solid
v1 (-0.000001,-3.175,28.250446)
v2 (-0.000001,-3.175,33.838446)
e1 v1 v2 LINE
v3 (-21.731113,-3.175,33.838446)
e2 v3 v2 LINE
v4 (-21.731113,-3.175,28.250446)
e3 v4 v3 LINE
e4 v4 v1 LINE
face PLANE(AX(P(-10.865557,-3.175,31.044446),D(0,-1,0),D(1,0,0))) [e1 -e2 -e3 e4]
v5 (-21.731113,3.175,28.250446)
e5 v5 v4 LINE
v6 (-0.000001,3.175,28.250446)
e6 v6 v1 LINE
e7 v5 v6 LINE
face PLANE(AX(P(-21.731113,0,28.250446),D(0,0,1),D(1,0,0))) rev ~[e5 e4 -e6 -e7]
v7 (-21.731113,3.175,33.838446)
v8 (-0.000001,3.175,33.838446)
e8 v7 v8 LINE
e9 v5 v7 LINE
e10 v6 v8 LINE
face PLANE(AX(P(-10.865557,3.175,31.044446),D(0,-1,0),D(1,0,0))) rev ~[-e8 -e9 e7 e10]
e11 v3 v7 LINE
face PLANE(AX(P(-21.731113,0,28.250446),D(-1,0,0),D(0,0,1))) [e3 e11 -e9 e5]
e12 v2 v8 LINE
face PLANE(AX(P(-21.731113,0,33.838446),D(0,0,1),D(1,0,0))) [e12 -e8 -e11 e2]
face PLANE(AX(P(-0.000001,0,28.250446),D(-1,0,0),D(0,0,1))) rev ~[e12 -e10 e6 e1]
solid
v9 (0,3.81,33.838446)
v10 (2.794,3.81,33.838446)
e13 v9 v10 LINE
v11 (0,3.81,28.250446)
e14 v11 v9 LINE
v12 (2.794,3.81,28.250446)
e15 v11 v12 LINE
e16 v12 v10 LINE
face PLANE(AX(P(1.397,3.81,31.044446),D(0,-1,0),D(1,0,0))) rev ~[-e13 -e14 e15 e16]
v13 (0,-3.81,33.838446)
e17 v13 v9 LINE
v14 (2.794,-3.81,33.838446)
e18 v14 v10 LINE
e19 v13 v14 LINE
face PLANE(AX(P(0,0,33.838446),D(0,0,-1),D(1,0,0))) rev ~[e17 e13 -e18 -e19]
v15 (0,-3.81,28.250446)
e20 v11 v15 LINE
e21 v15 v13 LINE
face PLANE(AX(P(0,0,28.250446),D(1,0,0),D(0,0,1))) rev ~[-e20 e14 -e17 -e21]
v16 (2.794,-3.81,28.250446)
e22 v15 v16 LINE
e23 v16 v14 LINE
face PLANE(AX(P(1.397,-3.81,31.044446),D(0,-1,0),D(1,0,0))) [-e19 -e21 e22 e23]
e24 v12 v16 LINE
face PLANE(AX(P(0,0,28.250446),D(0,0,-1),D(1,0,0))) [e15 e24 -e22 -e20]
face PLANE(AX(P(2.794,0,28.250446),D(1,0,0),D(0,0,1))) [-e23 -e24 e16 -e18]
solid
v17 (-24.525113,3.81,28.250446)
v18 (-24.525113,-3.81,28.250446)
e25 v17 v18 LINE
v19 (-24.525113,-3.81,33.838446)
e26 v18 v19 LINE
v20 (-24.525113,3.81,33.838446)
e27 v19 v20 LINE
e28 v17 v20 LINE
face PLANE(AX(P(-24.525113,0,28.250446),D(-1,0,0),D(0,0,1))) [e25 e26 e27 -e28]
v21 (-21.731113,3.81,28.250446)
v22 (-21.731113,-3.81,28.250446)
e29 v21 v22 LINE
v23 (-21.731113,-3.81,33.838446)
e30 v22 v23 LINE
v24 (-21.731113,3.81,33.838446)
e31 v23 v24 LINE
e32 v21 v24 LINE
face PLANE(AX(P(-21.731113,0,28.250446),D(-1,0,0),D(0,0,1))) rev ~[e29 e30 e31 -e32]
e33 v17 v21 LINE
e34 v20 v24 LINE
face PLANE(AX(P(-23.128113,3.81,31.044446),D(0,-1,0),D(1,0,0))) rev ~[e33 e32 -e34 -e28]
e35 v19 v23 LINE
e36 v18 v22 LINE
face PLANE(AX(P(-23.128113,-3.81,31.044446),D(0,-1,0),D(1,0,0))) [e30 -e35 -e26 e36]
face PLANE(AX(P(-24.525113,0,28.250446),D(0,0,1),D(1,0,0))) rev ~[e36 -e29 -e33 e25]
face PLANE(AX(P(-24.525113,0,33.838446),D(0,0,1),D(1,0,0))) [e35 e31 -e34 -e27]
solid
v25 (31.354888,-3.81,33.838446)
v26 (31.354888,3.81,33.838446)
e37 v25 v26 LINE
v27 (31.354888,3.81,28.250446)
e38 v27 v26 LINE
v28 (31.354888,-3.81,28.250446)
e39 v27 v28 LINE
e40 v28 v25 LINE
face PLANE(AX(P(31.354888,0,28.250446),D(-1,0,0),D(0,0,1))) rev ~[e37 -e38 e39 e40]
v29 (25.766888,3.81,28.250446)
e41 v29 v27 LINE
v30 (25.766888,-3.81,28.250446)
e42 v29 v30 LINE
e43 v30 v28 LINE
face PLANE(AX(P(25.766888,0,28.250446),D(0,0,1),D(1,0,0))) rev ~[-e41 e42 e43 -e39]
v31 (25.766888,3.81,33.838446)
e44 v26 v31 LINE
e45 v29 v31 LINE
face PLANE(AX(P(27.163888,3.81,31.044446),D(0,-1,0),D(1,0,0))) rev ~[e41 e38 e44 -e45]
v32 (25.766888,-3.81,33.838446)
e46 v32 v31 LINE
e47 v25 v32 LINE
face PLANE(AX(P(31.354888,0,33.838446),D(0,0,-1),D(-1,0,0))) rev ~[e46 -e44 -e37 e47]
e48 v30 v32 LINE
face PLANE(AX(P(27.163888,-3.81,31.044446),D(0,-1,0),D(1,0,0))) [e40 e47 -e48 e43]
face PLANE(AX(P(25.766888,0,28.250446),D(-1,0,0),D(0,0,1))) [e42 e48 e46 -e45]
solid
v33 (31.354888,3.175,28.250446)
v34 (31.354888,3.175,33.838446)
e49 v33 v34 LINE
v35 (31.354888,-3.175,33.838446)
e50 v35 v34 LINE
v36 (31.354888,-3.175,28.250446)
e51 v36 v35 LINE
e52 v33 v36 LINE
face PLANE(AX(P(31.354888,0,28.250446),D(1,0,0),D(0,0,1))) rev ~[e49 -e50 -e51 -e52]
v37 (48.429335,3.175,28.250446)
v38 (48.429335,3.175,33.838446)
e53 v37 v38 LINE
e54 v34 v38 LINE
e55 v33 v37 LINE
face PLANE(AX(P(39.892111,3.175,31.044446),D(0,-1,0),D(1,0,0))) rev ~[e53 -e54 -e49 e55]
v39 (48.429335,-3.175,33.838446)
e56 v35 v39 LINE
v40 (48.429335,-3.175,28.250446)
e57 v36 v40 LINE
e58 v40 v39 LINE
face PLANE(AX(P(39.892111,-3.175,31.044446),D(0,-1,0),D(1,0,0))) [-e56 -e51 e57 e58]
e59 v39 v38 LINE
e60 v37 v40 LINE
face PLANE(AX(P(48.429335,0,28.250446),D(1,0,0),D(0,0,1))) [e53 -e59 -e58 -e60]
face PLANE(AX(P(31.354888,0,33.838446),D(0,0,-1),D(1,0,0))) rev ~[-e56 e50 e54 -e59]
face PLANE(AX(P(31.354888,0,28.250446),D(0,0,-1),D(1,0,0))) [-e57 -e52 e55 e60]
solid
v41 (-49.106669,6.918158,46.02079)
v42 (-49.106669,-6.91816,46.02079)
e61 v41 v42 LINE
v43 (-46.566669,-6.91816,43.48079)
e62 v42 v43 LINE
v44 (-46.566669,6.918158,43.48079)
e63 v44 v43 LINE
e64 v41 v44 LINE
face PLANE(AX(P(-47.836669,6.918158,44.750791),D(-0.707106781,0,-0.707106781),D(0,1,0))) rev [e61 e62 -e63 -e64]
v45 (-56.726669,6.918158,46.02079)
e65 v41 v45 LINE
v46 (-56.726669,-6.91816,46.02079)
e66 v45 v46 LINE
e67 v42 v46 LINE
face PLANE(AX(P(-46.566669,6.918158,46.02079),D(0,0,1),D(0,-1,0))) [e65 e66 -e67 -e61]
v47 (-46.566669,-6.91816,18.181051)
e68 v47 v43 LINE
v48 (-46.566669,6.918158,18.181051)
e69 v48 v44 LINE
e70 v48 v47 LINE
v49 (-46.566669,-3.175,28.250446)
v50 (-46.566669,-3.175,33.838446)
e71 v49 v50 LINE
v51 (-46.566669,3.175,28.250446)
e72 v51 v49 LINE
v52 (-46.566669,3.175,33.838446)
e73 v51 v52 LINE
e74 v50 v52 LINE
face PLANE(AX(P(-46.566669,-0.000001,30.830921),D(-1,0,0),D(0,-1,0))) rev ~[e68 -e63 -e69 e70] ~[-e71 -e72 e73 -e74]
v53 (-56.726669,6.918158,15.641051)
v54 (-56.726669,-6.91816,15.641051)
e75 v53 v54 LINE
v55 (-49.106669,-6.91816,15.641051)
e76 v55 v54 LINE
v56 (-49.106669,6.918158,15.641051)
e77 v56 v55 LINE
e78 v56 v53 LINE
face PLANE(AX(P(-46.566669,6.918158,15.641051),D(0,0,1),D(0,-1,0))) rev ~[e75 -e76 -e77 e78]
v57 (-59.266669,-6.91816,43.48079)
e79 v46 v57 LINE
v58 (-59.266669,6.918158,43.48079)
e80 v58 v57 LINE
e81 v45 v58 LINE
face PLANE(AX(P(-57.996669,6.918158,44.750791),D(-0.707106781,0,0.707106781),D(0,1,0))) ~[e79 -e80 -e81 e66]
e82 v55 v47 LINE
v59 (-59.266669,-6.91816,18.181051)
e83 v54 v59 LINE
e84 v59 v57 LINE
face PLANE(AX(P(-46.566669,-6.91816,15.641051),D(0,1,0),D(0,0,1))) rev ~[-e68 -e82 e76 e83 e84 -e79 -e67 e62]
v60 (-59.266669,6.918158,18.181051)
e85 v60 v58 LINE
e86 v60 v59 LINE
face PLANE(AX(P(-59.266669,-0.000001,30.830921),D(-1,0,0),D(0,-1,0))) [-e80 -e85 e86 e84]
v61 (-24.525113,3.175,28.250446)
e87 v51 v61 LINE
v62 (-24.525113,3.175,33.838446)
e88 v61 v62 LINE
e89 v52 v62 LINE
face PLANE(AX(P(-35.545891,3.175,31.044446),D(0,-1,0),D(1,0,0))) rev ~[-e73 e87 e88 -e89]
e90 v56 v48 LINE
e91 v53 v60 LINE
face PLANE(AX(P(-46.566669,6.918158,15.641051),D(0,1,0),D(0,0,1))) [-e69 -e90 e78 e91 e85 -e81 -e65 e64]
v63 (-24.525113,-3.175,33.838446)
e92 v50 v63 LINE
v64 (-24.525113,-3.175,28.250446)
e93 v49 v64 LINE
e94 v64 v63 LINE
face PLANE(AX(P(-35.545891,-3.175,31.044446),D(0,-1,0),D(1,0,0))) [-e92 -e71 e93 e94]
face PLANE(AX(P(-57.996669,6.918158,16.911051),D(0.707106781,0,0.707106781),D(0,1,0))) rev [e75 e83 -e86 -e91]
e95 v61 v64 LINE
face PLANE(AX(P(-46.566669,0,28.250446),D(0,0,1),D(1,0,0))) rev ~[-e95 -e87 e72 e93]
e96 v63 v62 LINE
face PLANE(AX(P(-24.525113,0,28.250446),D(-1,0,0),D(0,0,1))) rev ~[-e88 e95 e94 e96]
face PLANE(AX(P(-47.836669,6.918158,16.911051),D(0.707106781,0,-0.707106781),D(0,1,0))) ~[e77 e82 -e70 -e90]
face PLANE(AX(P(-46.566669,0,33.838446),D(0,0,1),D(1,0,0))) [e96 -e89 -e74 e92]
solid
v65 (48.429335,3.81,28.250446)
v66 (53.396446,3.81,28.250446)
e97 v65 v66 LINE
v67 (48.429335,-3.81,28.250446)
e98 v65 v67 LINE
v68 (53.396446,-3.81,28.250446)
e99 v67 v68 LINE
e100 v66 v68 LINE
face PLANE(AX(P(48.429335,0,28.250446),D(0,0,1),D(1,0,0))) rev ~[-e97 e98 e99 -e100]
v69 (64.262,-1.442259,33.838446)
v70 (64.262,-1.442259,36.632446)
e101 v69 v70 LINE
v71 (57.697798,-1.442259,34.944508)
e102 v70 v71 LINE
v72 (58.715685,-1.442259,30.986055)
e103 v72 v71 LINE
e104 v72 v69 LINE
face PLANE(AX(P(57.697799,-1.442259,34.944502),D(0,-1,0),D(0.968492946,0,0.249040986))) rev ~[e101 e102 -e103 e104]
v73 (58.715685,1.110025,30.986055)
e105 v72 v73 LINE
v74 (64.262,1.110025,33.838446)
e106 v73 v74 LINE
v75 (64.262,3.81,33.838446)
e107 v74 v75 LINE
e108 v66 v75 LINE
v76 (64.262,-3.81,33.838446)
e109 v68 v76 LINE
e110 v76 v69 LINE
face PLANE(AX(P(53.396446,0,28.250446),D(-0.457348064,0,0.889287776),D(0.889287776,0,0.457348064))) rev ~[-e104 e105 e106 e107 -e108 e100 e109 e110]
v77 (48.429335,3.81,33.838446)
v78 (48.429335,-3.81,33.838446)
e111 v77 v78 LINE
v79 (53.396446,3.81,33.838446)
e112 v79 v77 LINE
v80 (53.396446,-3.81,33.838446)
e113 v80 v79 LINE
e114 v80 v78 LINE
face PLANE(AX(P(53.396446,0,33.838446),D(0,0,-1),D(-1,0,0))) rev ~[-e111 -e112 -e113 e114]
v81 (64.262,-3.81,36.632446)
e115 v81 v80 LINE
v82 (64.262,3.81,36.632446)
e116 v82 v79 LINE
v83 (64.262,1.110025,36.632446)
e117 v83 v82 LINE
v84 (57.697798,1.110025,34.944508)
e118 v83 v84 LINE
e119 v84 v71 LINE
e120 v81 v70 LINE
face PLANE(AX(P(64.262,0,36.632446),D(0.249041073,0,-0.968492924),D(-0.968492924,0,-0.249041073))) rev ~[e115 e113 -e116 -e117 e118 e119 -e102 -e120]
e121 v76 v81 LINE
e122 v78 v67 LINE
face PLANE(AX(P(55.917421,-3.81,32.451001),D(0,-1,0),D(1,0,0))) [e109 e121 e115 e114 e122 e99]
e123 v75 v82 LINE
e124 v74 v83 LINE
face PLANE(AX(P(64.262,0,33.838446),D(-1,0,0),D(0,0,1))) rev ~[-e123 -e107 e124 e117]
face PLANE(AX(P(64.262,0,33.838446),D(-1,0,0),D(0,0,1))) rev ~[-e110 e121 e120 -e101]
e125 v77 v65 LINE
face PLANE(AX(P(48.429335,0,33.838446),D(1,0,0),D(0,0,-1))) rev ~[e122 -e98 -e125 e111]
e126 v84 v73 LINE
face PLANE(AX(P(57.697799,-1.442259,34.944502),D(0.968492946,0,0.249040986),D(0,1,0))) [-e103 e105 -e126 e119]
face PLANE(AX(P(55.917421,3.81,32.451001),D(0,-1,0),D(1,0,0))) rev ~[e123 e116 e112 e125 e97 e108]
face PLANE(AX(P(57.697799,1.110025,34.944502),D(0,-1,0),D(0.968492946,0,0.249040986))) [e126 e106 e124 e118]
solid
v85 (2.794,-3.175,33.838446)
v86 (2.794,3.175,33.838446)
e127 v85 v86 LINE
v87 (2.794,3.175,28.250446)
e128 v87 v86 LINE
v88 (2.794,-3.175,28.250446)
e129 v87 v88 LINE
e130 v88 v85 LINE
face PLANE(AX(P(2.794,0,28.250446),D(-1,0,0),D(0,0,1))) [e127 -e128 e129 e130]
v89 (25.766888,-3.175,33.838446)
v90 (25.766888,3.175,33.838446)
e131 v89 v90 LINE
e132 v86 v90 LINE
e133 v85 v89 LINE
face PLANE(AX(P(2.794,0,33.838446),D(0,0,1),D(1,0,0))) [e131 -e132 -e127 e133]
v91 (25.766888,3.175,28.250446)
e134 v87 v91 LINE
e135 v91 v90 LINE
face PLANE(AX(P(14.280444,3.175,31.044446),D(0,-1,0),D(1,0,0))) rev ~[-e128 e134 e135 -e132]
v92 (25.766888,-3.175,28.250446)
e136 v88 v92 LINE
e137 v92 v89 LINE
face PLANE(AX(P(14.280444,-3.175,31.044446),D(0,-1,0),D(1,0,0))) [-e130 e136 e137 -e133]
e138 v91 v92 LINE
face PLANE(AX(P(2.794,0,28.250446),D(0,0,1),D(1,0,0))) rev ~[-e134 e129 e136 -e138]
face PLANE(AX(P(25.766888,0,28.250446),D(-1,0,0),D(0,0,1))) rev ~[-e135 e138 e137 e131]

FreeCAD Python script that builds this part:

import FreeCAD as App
import Part
import Sketcher

V = App.Vector
Q = App.Units.Quantity


def edges_at(feature, points):
    """Names of the edges that pass closest to the given points."""
    edges = feature.Shape.Edges
    near = lambda p: min(range(len(edges)), key=lambda i: edges[i].distToShape(Part.Vertex(*p))[0])
    return sorted({f"Edge{near(p) + 1}" for p in points})


def add_polygon(sketch, points):
    """Adds a closed chain of lines whose ends are joined by coincident constraints."""
    first, n = sketch.GeometryCount, len(points)
    for a, b in zip(points, points[1:] + points[:1]):
        sketch.addGeometry(Part.LineSegment(App.Vector(*a, 0), App.Vector(*b, 0)), False)
    for i in range(n):
        sketch.addConstraint(Sketcher.Constraint("Coincident", first + i, 2, first + (i + 1) % n, 1))

doc = App.newDocument("Part")
body = doc.addObject("PartDesign::Body", "Body")
body.AllowCompound = True

sketch1 = body.newObject("Sketcher::SketchObject", "Sketch")
sketch1.AttachmentSupport = (doc.getObject("XZ_Plane"), [""])
sketch1.MapMode = "FlatFace"
add_polygon(sketch1, [(-47, 34), (-47, 28), (-25, 28), (-25, 34)])
add_polygon(sketch1, [(-22, 34), (-22, 28), (0, 28), (0, 34)])
add_polygon(sketch1, [(3, 34), (3, 28), (26, 28), (26, 34)])
add_polygon(sketch1, [(31, 34), (31, 28), (48, 28), (48, 34)])
sketch1.addConstraint(Sketcher.Constraint("Vertical", 0))
sketch1.addConstraint(Sketcher.Constraint("Horizontal", 1))
sketch1.addConstraint(Sketcher.Constraint("Vertical", 2))
sketch1.addConstraint(Sketcher.Constraint("Horizontal", 3))
sketch1.addConstraint(Sketcher.Constraint("Vertical", 4))
sketch1.addConstraint(Sketcher.Constraint("Horizontal", 5))
sketch1.addConstraint(Sketcher.Constraint("Vertical", 6))
sketch1.addConstraint(Sketcher.Constraint("Horizontal", 7))
sketch1.addConstraint(Sketcher.Constraint("Vertical", 8))
sketch1.addConstraint(Sketcher.Constraint("Horizontal", 9))
sketch1.addConstraint(Sketcher.Constraint("Vertical", 10))
sketch1.addConstraint(Sketcher.Constraint("Horizontal", 11))
sketch1.addConstraint(Sketcher.Constraint("Vertical", 12))
sketch1.addConstraint(Sketcher.Constraint("Horizontal", 13))
sketch1.addConstraint(Sketcher.Constraint("Vertical", 14))
sketch1.addConstraint(Sketcher.Constraint("Horizontal", 15))
sketch1.addConstraint(Sketcher.Constraint("PointOnObject", 5, 2, -2))
sketch1.addConstraint(Sketcher.Constraint("Horizontal", 1, 2, 4, 2))
sketch1.addConstraint(Sketcher.Constraint("Horizontal", 3, 2, 6, 2))
sketch1.addConstraint(Sketcher.Constraint("Horizontal", 5, 2, 8, 2))
sketch1.addConstraint(Sketcher.Constraint("Horizontal", 7, 2, 10, 2))
sketch1.addConstraint(Sketcher.Constraint("Horizontal", 9, 2, 12, 2))
sketch1.addConstraint(Sketcher.Constraint("Horizontal", 11, 2, 14, 2))
sketch1.addConstraint(Sketcher.Constraint("DistanceY", 0, 2, 0, 1, Q("0.22 in")))
sketch1.addConstraint(Sketcher.Constraint("DistanceX", -1, 1, 8, 2, Q("0.11 in")))
sketch1.addConstraint(Sketcher.Constraint("DistanceX", 1, 2, 4, 2, Q("0.11 in")))
sketch1.addConstraint(Sketcher.Constraint("DistanceX", 4, 2, 9, 2, Q("1.8700001 in")))
sketch1.addConstraint(Sketcher.Constraint("DistanceX", 9, 2, 12, 2, Q("0.22 in")))
sketch1.addConstraint(Sketcher.Constraint("DistanceX", 9, 1, 9, 2, Q("22.972888 mm")))
sketch1.addConstraint(Sketcher.Constraint("DistanceX", 1, 1, 1, 2, Q("22.041556 mm")))
sketch1.addConstraint(Sketcher.Constraint("DistanceX", 13, 1, 13, 2, Q("17.074447 mm")))
sketch1.addConstraint(Sketcher.Constraint("DistanceY", -1, 1, 0, 2, Q("28.250446 mm")))
pad1 = body.newObject("PartDesign::Pad", "Pad")
pad1.Profile = sketch1
pad1.Length = Q("0.25 in")
pad1.Midplane = True

sketch2 = body.newObject("Sketcher::SketchObject", "Sketch001")
sketch2.AttachmentSupport = (doc.getObject("YZ_Plane"), [""])
sketch2.MapMode = "FlatFace"
sketch2.AttachmentOffset = App.Placement(V(0, 0, -46.566669), App.Rotation())
add_polygon(sketch2, [(7, 46), (7, 16), (-7, 16), (-7, 46)])
sketch2.addConstraint(Sketcher.Constraint("Vertical", 0))
sketch2.addConstraint(Sketcher.Constraint("Horizontal", 1))
sketch2.addConstraint(Sketcher.Constraint("Vertical", 2))
sketch2.addConstraint(Sketcher.Constraint("Horizontal", 3))
sketch2.addConstraint(Sketcher.Constraint("DistanceX", 1, 2, 1, 1, Q("13.836319 mm")))
sketch2.addConstraint(Sketcher.Constraint("DistanceY", 0, 2, 0, 1, Q("30.379739 mm")))
sketch2.addConstraint(Sketcher.Constraint("DistanceX", -1, 1, 0, 2, Q("6.918158 mm")))
sketch2.addConstraint(Sketcher.Constraint("DistanceY", -1, 1, 0, 2, Q("15.641051 mm")))
pad2 = body.newObject("PartDesign::Pad", "Pad001")
pad2.Profile = sketch2
pad2.Length = Q("0.5 in")
pad2.Reversed = True
doc.recompute()

chamfer = body.newObject("PartDesign::Chamfer", "Chamfer")
chamfer.Base = (pad2, edges_at(pad2, [
    (-59.267, 0, 46.021),
    (-59.267, 0, 15.641),
    (-46.567, 0, 15.641),
    (-46.567, 0, 46.021),
]))
chamfer.Size = Q("0.1 in")
body2 = doc.addObject("PartDesign::Body", "Body001")
body2.AllowCompound = True

sketch3 = body2.newObject("Sketcher::SketchObject", "Sketch002")
sketch3.AttachmentSupport = (doc.getObject("XZ_Plane001"), [""])
sketch3.MapMode = "FlatFace"
add_polygon(sketch3, [(25.8, 33.8), (25.8, 28.3), (31.4, 28.3), (31.4, 33.8)])
add_polygon(sketch3, [(53.4, 33.8), (48.4, 33.8), (48.4, 28.3), (53.4, 28.3), (64.3, 33.8), (64.3, 36.6)])
add_polygon(sketch3, [(-24.5, 33.8), (-24.5, 28.3), (-21.7, 28.3), (-21.7, 33.8)])
add_polygon(sketch3, [(0, 33.8), (0, 28.3), (2.8, 28.3), (2.8, 33.8)])
sketch3.addConstraint(Sketcher.Constraint("Vertical", 0))
sketch3.addConstraint(Sketcher.Constraint("Horizontal", 1))
sketch3.addConstraint(Sketcher.Constraint("Vertical", 2))
sketch3.addConstraint(Sketcher.Constraint("Horizontal", 3))
sketch3.addConstraint(Sketcher.Constraint("Horizontal", 4))
sketch3.addConstraint(Sketcher.Constraint("Vertical", 5))
sketch3.addConstraint(Sketcher.Constraint("Horizontal", 6))
sketch3.addConstraint(Sketcher.Constraint("Vertical", 8))
sketch3.addConstraint(Sketcher.Constraint("Vertical", 10))
sketch3.addConstraint(Sketcher.Constraint("Horizontal", 11))
sketch3.addConstraint(Sketcher.Constraint("Vertical", 12))
sketch3.addConstraint(Sketcher.Constraint("Horizontal", 13))
sketch3.addConstraint(Sketcher.Constraint("Vertical", 14))
sketch3.addConstraint(Sketcher.Constraint("Horizontal", 15))
sketch3.addConstraint(Sketcher.Constraint("Vertical", 16))
sketch3.addConstraint(Sketcher.Constraint("Horizontal", 17))
sketch3.addConstraint(Sketcher.Constraint("PointOnObject", 14, 2, -2))
sketch3.addConstraint(Sketcher.Constraint("Horizontal", 3, 2, 4, 2))
sketch3.addConstraint(Sketcher.Constraint("Horizontal", 1, 2, 5, 2))
sketch3.addConstraint(Sketcher.Constraint("Horizontal", 4, 2, 7, 2))
sketch3.addConstraint(Sketcher.Constraint("Horizontal", 6, 2, 10, 2))
sketch3.addConstraint(Sketcher.Constraint("Horizontal", 9, 2, 12, 2))
sketch3.addConstraint(Sketcher.Constraint("Horizontal", 11, 2, 14, 2))
sketch3.addConstraint(Sketcher.Constraint("Horizontal", 13, 2, 16, 2))
sketch3.addConstraint(Sketcher.Constraint("Vertical", 6, 2, 9, 2))
sketch3.addConstraint(Sketcher.Constraint("Equal", 13, 15))
sketch3.addConstraint(Sketcher.Constraint("Equal", 3, 0))
sketch3.addConstraint(Sketcher.Constraint("Equal", 17, 8))
sketch3.addConstraint(Sketcher.Constraint("DistanceX", 1, 1, 1, 2, Q("0.22 in")))
sketch3.addConstraint(Sketcher.Constraint("DistanceX", 11, 1, 11, 2, Q("0.11 in")))
sketch3.addConstraint(Sketcher.Constraint("DistanceX", 10, 2, 1, 2, Q("2.2 in")))
sketch3.addConstraint(Sketcher.Constraint("DistanceX", -1, 1, 7, 2, Q("2.53 in")))
sketch3.addConstraint(Sketcher.Constraint("DistanceX", 4, 2, 4, 1, Q("4.967111 mm")))
sketch3.addConstraint(Sketcher.Constraint("DistanceX", -1, 1, 0, 2, Q("25.766888 mm")))
sketch3.addConstraint(Sketcher.Constraint("DistanceX", 10, 2, 5, 2, Q("72.954448 mm")))
sketch3.addConstraint(Sketcher.Constraint("DistanceY", -1, 1, 0, 2, Q("28.250446 mm")))
pad3 = body2.newObject("PartDesign::Pad", "Pad002")
pad3.Profile = sketch3
pad3.Length = Q("0.3 in")
pad3.Midplane = True

sketch4 = body2.newObject("Sketcher::SketchObject", "Sketch003")
sketch4.Placement = App.Placement(V(-4.849922, 0, 18.860806), App.Rotation(V(0.968492946, 0, 0.249040986), V(0, 0.999999999, 0), V(-0.249040986, 0, 0.968492946), "ZXY"))
add_polygon(sketch4, [(64.6, 1.1), (64.6, -1.4), (71.4, -1.4), (71.4, 1.1)])
sketch4.addConstraint(Sketcher.Constraint("Vertical", 0))
sketch4.addConstraint(Sketcher.Constraint("Horizontal", 1))
sketch4.addConstraint(Sketcher.Constraint("Vertical", 2))
sketch4.addConstraint(Sketcher.Constraint("Horizontal", 3))
sketch4.addConstraint(Sketcher.Constraint("DistanceX", 1, 1, 1, 2, Q("6.777749 mm")))
sketch4.addConstraint(Sketcher.Constraint("DistanceY", 0, 2, 0, 1, Q("2.552284 mm")))
sketch4.addConstraint(Sketcher.Constraint("DistanceY", 0, 2, -1, 1, Q("1.442259 mm")))
sketch4.addConstraint(Sketcher.Constraint("DistanceX", -1, 1, 0, 2, Q("64.582526 mm")))
pocket1 = body2.newObject("PartDesign::Pocket", "Pocket")
pocket1.Profile = sketch4
pocket1.Length = Q("1 in")
pocket1.Midplane = True

doc.recompute()
